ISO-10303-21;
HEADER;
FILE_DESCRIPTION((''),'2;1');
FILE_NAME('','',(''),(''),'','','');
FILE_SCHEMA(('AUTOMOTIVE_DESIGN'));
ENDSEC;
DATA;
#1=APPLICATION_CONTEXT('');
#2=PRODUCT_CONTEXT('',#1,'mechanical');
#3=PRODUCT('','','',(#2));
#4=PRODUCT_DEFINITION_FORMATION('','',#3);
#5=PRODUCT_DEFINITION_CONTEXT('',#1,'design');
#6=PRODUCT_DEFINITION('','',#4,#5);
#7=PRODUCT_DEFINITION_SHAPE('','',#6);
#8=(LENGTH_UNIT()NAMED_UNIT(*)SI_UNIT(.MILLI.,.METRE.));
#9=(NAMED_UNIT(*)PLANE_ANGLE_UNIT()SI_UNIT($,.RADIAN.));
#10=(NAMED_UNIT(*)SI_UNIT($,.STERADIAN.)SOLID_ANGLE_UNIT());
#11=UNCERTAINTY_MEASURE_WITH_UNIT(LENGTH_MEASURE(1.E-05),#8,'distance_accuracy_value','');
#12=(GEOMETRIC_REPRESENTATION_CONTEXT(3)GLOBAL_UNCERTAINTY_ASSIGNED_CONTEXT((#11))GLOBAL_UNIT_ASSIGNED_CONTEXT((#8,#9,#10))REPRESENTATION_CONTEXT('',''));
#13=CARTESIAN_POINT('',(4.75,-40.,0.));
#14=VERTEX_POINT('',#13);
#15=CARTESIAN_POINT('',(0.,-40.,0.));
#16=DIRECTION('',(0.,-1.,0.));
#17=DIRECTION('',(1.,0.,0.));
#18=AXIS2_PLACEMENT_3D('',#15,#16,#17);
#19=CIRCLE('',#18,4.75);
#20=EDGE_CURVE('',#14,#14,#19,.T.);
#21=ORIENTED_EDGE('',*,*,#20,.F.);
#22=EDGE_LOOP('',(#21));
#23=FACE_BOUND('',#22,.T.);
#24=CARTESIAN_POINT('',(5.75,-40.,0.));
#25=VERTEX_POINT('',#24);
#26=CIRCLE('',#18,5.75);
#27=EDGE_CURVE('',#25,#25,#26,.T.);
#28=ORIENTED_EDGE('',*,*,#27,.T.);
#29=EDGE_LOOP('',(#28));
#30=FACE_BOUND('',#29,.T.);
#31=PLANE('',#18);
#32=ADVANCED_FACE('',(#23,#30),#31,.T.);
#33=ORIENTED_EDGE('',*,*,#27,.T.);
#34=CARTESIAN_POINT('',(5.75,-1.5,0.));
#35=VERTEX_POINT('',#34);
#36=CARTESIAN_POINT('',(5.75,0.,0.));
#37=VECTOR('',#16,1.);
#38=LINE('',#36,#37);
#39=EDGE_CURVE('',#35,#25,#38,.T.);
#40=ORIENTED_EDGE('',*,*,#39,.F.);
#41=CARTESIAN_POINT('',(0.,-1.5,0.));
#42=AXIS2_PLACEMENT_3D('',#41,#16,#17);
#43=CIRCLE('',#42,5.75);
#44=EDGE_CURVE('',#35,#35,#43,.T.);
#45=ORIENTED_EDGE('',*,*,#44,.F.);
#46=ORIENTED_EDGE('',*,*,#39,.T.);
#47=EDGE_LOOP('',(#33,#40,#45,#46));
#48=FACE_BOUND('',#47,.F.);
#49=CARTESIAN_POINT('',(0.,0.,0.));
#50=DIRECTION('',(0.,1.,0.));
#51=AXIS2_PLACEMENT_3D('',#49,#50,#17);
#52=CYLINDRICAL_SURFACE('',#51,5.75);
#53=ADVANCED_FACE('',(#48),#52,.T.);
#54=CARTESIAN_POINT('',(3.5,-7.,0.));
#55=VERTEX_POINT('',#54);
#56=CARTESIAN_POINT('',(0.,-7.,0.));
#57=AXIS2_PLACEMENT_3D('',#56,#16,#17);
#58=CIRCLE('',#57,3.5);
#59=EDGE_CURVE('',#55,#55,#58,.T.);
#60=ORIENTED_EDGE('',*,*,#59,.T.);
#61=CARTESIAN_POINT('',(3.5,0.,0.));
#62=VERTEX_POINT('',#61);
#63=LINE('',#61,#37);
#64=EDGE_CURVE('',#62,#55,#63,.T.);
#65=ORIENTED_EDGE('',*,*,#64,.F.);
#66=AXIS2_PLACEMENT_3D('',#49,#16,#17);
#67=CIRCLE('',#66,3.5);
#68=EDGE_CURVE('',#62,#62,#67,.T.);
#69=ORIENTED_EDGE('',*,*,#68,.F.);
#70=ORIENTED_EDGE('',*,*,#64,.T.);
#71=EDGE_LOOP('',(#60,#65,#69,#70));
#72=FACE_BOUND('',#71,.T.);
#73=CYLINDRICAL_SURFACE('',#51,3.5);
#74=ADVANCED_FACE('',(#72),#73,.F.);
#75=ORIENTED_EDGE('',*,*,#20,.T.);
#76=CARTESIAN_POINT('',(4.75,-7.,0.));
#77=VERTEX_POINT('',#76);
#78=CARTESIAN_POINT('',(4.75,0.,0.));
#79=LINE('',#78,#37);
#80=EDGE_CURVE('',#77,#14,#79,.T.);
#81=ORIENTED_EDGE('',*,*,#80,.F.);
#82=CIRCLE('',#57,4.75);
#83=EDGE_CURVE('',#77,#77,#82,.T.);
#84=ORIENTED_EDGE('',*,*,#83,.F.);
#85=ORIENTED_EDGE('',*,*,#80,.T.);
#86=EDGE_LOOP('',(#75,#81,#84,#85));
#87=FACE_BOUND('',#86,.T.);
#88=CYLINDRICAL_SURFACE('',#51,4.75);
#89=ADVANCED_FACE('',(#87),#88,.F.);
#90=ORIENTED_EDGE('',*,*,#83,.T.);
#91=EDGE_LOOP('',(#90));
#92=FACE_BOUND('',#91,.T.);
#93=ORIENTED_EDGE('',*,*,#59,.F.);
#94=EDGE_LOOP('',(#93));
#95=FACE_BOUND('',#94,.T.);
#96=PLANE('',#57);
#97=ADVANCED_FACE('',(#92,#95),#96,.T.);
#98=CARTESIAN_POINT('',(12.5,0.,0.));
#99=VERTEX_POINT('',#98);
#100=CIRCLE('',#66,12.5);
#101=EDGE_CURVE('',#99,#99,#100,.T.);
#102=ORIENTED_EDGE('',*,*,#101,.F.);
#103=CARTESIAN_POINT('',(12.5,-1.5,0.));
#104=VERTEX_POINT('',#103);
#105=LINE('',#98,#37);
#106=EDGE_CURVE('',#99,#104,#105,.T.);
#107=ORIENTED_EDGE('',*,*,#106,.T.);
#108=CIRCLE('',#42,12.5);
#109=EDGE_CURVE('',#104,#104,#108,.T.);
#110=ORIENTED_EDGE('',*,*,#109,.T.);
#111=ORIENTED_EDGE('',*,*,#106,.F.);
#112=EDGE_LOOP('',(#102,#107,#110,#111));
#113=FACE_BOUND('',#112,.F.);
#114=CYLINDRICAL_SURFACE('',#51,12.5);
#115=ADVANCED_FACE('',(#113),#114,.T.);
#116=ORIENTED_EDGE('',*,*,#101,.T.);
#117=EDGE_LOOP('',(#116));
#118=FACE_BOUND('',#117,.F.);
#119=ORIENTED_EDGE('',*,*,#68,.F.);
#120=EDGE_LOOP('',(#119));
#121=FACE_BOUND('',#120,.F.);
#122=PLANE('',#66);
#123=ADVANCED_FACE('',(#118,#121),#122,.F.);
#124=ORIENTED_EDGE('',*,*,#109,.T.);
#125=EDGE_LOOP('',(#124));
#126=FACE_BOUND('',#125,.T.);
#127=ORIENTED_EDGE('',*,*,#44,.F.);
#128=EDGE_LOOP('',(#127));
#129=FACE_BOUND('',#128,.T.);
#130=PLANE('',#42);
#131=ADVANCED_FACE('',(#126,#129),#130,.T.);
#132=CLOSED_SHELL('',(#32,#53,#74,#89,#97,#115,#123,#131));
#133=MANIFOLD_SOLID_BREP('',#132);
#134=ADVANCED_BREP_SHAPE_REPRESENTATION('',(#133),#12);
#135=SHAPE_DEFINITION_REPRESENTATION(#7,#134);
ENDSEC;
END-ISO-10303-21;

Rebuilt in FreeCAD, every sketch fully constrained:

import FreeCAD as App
import Part
import Sketcher

V = App.Vector
Q = App.Units.Quantity

doc = App.newDocument("Part")
body = doc.addObject("PartDesign::Body", "Body")

# Sketch on XZ plane
sketch1 = body.newObject("Sketcher::SketchObject", "Sketch")
sketch1.AttachmentSupport = (doc.getObject("XZ_Plane"), [""])
sketch1.MapMode = "FlatFace"
sketch1.addGeometry([
    Part.Circle(V(0, 0, 0), V(0, 0, 1), 12),
    Part.Circle(V(0, 0, 0), V(0, 0, 1), 6),
], False)
sketch1.addConstraint([
    Sketcher.Constraint("Coincident", 0, 3, -1, 1),
    Sketcher.Constraint("Coincident", 1, 3, -1, 1),
    Sketcher.Constraint("Diameter", 0, Q("25 mm")),
    Sketcher.Constraint("Diameter", 1, Q("11.5 mm")),
])
pad1 = body.newObject("PartDesign::Pad", "Pad")
pad1.Profile = sketch1
pad1.Length = 1.5

# Sketch on XZ plane
sketch2 = body.newObject("Sketcher::SketchObject", "Sketch001")
sketch2.AttachmentSupport = (doc.getObject("XZ_Plane"), [""])
sketch2.MapMode = "FlatFace"
sketch2.addGeometry([
    Part.Circle(V(0, 0, 0), V(0, 0, 1), 5.8),
    Part.Circle(V(0, 0, 0), V(0, 0, 1), 4.8),
], False)
sketch2.addConstraint([
    Sketcher.Constraint("Coincident", 0, 3, -1, 1),
    Sketcher.Constraint("Coincident", 1, 3, -1, 1),
    Sketcher.Constraint("Diameter", 0, Q("11.5 mm")),
    Sketcher.Constraint("Diameter", 1, Q("9.5 mm")),
])
pad2 = body.newObject("PartDesign::Pad", "Pad001")
pad2.Profile = sketch2
pad2.Length = 40

# Sketch on XZ plane
sketch3 = body.newObject("Sketcher::SketchObject", "Sketch002")
sketch3.AttachmentSupport = (doc.getObject("XZ_Plane"), [""])
sketch3.MapMode = "FlatFace"
sketch3.addGeometry([
    Part.Circle(V(0, 0, 0), V(0, 0, 1), 4.8),
    Part.Circle(V(0, 0, 0), V(0, 0, 1), 3.5),
], False)
sketch3.addConstraint([
    Sketcher.Constraint("Coincident", 0, 3, -1, 1),
    Sketcher.Constraint("Coincident", 1, 3, -1, 1),
    Sketcher.Constraint("Diameter", 1, Q("7 mm")),
    Sketcher.Constraint("Diameter", 0, Q("9.5 mm")),
])
pad3 = body.newObject("PartDesign::Pad", "Pad002")
pad3.Profile = sketch3
pad3.Length = 7

doc.recompute()
